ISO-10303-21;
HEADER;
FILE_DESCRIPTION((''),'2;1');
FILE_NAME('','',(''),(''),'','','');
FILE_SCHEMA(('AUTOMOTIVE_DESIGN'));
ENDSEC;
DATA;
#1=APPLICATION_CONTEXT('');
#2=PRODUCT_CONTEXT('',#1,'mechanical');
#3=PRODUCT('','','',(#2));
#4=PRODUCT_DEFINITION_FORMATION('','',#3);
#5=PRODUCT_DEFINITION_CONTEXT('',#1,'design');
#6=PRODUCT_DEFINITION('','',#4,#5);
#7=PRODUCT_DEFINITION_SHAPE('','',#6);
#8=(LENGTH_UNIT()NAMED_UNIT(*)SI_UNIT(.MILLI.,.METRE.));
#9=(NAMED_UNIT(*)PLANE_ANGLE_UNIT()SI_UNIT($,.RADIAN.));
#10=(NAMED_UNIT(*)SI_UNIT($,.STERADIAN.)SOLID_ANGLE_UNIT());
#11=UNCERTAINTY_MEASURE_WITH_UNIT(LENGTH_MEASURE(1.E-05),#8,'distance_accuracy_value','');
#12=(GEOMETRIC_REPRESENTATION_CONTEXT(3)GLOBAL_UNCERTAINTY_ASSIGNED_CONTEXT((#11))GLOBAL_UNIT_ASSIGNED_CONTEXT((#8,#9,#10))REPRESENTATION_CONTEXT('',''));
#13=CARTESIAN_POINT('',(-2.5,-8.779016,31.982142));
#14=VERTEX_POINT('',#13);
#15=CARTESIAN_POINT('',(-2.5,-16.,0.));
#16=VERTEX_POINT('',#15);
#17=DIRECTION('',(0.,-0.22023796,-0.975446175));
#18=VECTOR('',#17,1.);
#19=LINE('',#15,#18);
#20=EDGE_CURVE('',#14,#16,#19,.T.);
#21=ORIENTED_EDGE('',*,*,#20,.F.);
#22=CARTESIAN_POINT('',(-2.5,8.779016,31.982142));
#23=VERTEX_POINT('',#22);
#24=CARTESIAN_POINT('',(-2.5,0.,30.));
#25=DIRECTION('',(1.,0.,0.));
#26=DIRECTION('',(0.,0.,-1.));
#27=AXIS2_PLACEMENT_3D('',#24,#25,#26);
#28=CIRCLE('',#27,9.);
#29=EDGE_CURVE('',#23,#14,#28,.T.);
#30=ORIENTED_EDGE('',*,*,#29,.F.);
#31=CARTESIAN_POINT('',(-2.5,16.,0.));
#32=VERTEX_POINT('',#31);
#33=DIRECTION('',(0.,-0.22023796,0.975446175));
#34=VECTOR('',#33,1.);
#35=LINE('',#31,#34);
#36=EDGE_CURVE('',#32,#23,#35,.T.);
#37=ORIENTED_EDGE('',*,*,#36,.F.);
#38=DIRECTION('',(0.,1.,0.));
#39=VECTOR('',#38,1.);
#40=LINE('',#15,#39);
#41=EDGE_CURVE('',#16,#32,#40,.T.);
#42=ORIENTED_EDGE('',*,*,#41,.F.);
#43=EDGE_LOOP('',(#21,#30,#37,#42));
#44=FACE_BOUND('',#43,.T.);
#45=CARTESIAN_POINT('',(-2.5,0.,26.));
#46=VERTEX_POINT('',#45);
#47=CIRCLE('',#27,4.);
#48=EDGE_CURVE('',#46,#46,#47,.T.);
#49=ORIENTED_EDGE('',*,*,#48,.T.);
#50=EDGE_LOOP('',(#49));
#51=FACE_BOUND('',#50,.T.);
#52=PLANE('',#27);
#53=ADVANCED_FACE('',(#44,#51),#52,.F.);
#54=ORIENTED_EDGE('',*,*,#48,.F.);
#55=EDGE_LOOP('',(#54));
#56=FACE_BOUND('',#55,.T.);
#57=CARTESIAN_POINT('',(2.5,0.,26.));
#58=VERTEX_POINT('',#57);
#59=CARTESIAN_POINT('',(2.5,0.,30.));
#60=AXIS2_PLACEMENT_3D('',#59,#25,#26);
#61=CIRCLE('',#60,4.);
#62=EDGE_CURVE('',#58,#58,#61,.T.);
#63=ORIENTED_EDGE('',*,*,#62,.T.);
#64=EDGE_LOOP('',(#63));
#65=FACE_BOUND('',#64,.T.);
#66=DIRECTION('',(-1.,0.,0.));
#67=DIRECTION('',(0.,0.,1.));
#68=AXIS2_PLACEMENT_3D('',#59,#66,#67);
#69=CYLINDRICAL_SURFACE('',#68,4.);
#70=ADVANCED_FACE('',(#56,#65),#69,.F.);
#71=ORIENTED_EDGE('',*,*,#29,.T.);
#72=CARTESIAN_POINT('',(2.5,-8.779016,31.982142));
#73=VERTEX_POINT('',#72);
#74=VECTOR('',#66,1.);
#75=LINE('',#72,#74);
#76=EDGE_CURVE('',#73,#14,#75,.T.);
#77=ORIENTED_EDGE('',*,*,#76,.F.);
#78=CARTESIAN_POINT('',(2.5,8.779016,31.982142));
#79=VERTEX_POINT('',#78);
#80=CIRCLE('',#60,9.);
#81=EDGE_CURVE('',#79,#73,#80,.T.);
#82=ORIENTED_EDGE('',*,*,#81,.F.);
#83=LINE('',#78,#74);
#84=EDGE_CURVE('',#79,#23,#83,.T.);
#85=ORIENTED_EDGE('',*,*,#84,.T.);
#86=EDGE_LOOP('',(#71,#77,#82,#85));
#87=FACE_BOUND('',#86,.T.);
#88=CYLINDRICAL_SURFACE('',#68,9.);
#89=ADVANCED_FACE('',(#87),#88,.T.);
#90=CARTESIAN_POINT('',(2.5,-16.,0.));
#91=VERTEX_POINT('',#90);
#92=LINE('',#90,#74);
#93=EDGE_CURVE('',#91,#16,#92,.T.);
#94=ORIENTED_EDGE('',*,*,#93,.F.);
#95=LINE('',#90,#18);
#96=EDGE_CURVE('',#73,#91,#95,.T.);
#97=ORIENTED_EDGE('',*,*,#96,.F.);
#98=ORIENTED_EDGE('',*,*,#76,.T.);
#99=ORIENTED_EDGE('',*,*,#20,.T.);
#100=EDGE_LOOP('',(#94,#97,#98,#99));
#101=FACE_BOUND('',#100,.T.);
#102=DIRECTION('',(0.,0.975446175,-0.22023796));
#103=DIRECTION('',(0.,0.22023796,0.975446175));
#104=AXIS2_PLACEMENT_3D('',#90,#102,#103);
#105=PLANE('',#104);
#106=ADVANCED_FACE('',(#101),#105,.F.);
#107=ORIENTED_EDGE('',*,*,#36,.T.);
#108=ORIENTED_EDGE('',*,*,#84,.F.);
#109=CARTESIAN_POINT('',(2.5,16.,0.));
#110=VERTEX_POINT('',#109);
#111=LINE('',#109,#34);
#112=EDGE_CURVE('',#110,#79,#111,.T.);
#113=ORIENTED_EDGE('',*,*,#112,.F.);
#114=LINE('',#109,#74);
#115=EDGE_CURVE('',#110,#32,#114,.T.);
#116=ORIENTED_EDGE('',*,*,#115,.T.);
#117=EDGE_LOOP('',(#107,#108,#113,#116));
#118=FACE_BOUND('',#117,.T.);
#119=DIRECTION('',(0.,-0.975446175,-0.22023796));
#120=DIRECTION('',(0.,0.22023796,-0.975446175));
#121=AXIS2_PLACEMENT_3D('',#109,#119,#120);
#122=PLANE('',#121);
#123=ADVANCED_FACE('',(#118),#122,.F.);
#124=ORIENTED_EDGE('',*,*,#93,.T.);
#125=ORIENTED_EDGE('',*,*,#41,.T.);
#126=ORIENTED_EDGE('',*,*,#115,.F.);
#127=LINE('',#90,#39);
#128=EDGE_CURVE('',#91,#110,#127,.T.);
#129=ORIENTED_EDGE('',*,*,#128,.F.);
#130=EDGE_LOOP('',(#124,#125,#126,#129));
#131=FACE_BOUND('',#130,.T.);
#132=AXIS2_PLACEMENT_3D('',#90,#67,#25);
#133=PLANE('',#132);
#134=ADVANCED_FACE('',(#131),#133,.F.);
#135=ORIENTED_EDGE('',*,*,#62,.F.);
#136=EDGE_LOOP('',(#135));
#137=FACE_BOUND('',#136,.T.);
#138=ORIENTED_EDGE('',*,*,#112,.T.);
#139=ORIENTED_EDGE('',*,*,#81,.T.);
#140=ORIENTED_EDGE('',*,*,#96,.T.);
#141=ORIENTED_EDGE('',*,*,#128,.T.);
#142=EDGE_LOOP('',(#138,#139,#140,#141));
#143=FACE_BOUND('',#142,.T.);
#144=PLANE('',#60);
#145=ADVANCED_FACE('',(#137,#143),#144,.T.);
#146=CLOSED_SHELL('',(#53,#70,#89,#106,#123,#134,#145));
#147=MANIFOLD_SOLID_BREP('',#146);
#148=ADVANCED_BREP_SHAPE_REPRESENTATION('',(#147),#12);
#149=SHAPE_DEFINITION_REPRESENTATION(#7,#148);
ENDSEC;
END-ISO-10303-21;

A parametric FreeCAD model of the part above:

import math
import FreeCAD as App
import Part
import Sketcher
from FreeCAD import Vector
Q = App.Units.Quantity

doc = App.newDocument("Part")
body = doc.addObject("PartDesign::Body", "Body")

# Sketch on YZ plane
sketch1 = body.newObject("Sketcher::SketchObject", "Sketch")
sketch1.AttachmentSupport = (doc.getObject("YZ_Plane"), [""])
sketch1.MapMode = "FlatFace"
sketch1.addGeometry(Part.LineSegment(Vector(-16, 0, 0), Vector(16, 0, 0)), False)
sketch1.addGeometry(Part.LineSegment(Vector(16, 0, 0), Vector(8.779016, 31.982142, 0)), False)
sketch1.addGeometry(Part.ArcOfCircle(Part.Circle(Vector(0, 30, 0), Vector(0, 0, 1), 9), math.radians(12.72301), math.radians(167.27699)), False)
sketch1.addGeometry(Part.LineSegment(Vector(-8.779016, 31.982142, 0), Vector(-16, 0, 0)), False)
sketch1.addGeometry(Part.Circle(Vector(0, 30, 0), Vector(0, 0, 1), 4), False)
sketch1.addConstraint(Sketcher.Constraint("Coincident", 0, 2, 1, 1))
sketch1.addConstraint(Sketcher.Constraint("Tangent", 1, 2, 2, 1))
sketch1.addConstraint(Sketcher.Constraint("Tangent", 2, 2, 3, 1))
sketch1.addConstraint(Sketcher.Constraint("Coincident", 3, 2, 0, 1))
sketch1.addConstraint(Sketcher.Constraint("Horizontal", 0))
sketch1.addConstraint(Sketcher.Constraint("Coincident", 4, 3, 2, 3))
sketch1.addConstraint(Sketcher.Constraint("Symmetric", 0, 2, 3, 2, -1, 1))
sketch1.addConstraint(Sketcher.Constraint("PointOnObject", 2, 3, -2))
sketch1.addConstraint(Sketcher.Constraint("Diameter", 4, Q("8 mm")))
sketch1.addConstraint(Sketcher.Constraint("Radius", 2, Q("9 mm")))
sketch1.addConstraint(Sketcher.Constraint("DistanceX", 0, 1, 0, 2, Q("32 mm")))
sketch1.addConstraint(Sketcher.Constraint("DistanceY", -1, 1, 2, 3, Q("30 mm")))
pad1 = body.newObject("PartDesign::Pad", "Pad")
pad1.Profile = sketch1
pad1.Length = 5
pad1.Midplane = True

doc.recompute()
